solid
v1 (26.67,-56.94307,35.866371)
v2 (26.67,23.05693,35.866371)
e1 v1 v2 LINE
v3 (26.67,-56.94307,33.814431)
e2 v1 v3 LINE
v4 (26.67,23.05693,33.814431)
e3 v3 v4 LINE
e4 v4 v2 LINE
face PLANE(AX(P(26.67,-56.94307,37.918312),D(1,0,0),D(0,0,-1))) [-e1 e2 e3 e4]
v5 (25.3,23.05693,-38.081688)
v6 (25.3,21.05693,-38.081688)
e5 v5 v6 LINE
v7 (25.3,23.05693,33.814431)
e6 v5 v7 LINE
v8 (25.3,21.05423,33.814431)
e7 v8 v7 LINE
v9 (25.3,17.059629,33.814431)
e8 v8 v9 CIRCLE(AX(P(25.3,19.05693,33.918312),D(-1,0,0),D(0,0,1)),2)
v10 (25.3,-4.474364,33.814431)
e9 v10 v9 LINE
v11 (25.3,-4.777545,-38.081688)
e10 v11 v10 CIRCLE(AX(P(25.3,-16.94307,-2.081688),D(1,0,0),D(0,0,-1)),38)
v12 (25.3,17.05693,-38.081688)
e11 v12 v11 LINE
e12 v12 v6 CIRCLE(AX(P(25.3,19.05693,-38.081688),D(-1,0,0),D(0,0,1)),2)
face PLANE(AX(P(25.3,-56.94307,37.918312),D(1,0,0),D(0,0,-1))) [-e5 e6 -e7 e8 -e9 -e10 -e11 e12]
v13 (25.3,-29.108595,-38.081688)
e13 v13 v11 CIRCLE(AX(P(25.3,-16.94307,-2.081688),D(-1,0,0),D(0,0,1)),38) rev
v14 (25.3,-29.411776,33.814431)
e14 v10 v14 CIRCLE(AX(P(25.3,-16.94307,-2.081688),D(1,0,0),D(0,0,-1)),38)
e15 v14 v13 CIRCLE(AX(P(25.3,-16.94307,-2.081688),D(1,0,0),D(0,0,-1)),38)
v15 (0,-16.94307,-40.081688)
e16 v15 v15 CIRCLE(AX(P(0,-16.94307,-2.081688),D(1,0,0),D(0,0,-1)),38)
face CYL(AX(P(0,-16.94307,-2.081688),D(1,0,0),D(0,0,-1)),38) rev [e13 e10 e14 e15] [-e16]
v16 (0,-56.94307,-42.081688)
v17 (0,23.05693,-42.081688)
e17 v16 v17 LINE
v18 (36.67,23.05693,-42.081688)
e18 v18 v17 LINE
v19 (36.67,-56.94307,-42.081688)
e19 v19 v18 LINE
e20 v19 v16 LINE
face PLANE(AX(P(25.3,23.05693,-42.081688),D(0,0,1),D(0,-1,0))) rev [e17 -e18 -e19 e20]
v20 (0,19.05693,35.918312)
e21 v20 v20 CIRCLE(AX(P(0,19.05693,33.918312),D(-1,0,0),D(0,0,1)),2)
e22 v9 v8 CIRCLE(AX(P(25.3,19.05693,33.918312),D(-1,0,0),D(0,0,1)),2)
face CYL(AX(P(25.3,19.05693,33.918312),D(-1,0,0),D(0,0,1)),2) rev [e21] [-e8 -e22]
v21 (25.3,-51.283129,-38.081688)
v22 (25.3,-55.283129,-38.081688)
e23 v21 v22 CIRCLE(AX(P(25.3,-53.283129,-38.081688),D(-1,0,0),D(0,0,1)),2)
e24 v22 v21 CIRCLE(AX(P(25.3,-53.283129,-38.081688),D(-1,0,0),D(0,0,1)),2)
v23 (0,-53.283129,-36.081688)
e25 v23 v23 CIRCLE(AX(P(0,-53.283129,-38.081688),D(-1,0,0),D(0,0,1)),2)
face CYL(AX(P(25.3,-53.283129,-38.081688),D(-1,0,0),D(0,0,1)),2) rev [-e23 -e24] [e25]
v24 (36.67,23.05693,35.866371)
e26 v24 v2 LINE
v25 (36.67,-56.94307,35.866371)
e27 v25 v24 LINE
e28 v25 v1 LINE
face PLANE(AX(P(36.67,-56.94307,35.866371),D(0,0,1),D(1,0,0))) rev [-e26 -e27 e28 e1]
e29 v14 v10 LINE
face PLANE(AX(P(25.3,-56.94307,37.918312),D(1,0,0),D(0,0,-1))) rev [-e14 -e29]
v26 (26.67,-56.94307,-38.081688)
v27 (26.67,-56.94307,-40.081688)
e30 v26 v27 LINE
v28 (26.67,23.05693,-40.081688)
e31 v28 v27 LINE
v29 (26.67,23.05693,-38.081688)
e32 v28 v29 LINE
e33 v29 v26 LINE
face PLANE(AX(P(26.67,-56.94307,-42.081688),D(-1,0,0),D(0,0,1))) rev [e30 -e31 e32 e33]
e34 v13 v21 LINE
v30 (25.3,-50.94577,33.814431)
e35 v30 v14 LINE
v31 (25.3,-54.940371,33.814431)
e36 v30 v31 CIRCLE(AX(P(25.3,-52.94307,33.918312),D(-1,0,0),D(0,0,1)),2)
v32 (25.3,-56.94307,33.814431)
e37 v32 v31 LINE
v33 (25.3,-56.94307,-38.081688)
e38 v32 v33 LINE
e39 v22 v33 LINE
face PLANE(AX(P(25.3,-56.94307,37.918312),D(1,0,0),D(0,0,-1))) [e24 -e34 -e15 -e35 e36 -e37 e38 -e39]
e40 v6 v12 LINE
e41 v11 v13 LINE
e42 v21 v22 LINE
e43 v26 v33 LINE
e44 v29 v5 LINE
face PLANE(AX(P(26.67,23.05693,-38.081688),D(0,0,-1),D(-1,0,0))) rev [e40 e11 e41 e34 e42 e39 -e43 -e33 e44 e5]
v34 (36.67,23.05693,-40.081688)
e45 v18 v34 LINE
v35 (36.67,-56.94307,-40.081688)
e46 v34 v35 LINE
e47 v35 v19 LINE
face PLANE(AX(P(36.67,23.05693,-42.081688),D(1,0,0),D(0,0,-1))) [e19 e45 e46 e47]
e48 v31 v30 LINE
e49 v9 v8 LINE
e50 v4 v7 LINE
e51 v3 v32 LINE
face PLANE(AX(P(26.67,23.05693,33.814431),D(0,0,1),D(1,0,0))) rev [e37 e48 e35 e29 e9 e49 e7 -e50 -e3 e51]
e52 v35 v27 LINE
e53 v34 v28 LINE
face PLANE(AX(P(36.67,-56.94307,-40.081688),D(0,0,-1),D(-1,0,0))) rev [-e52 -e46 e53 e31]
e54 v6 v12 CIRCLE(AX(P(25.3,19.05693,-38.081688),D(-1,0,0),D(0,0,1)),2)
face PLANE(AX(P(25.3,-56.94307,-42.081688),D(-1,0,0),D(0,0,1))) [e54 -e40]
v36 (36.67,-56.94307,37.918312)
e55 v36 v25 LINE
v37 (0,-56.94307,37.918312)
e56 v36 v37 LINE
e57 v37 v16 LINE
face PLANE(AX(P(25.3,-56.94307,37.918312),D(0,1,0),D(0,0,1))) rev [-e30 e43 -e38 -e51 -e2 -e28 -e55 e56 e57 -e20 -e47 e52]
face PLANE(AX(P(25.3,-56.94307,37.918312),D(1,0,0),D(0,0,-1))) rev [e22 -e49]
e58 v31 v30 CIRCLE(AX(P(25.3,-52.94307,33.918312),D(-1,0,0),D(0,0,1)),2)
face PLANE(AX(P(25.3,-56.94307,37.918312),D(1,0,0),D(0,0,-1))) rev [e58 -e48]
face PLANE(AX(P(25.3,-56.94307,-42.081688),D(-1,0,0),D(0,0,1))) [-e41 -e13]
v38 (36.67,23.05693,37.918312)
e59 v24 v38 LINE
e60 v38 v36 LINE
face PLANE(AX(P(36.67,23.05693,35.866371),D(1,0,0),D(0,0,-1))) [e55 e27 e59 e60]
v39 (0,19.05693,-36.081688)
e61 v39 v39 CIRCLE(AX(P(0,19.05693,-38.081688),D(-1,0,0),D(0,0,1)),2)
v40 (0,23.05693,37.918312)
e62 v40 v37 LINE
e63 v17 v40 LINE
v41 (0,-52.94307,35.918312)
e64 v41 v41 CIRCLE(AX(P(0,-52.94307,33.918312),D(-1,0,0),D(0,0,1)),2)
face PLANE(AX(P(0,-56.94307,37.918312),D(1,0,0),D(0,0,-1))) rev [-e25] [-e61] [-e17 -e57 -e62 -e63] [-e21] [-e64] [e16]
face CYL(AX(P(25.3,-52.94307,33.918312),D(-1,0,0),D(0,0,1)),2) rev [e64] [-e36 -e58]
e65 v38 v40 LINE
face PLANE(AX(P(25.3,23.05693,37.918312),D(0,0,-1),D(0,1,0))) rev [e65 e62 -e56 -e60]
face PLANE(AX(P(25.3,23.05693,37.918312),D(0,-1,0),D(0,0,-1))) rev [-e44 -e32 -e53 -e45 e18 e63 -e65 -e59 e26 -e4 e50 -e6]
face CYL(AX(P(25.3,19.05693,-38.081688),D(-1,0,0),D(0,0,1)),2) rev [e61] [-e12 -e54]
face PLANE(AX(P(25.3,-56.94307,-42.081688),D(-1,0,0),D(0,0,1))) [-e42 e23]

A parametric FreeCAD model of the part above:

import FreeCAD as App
import Part
import Sketcher


def add_polygon(sketch, points):
    """Adds a closed chain of lines whose ends are joined by coincident constraints."""
    first, n = sketch.GeometryCount, len(points)
    for a, b in zip(points, points[1:] + points[:1]):
        sketch.addGeometry(Part.LineSegment(App.Vector(*a, 0), App.Vector(*b, 0)), False)
    for i in range(n):
        sketch.addConstraint(Sketcher.Constraint("Coincident", first + i, 2, first + (i + 1) % n, 1))

doc = App.newDocument("Part")
params = doc.addObject("Spreadsheet::Sheet", "Params")
for row, (alias, value) in enumerate([
    ("sketch1_width", "80 mm"),
    ("pad1_length", "25.3 mm"),
    ("sketch2_diameter", "76 mm"),
    ("pocket1_length", "25.3 mm"),
    ("sketch3_diameter", "4 mm"),
    ("pocket2_length", "25.3 mm"),
    ("sketch4_diameter", "4 mm"),
    ("pocket3_length", "25.3 mm"),
    ("sketch5_width", "80 mm"),
    ("sketch5_height", "4 mm"),
    ("pad2_length", "1.37 mm"),
    ("sketch6_width", "80 mm"),
    ("pad3_length", "10 mm"),
    ("sketch7_width", "80 mm"),
    ("sketch7_height", "2 mm"),
    ("pad4_length", "10 mm"),
], start=1):
    params.set(f"A{row}", alias)
    params.set(f"B{row}", "=" + value)
    params.setAlias(f"B{row}", alias)

body = doc.addObject("PartDesign::Body", "Body")

# Sketch on YZ plane
sketch1 = body.newObject("Sketcher::SketchObject", "Sketch")
sketch1.AttachmentSupport = (doc.getObject("YZ_Plane"), [""])
sketch1.MapMode = "FlatFace"
add_polygon(sketch1, [(23.05693, 37.918312), (-56.94307, 37.918312), (-56.94307, -42.081688), (23.05693, -42.081688)])  # lines 0-3
sketch1.addConstraint(Sketcher.Constraint("Horizontal", 0))
sketch1.addConstraint(Sketcher.Constraint("Vertical", 1))
sketch1.addConstraint(Sketcher.Constraint("Horizontal", 2))
sketch1.addConstraint(Sketcher.Constraint("Vertical", 3))
sketch1.addConstraint(Sketcher.Constraint("Equal", 2, 1))
sketch1.addConstraint(Sketcher.Constraint("DistanceX", 0, 2, 0, 1, 80.0))
sketch1.addConstraint(Sketcher.Constraint("DistanceX", 0, 2, -1, 1, 56.94307))
sketch1.addConstraint(Sketcher.Constraint("DistanceY", -1, 1, 0, 2, 37.918312))
sketch1.setExpression("Constraints[9]", "Params.sketch1_width")
pad1 = body.newObject("PartDesign::Pad", "Pad")
pad1.Profile = sketch1
pad1.setExpression("Length", "Params.pad1_length")

# Sketch on YZ plane
sketch2 = body.newObject("Sketcher::SketchObject", "Sketch001")
sketch2.AttachmentSupport = (doc.getObject("YZ_Plane"), [""])
sketch2.MapMode = "FlatFace"
sketch2.AttachmentOffset = App.Placement(App.Vector(0, 0, 25.3), App.Rotation())
sketch2.addGeometry(Part.Circle(App.Vector(-16.94307, -2.081688, 0), App.Vector(0, 0, 1), 38), False)
sketch2.addConstraint(Sketcher.Constraint("Diameter", 0, 76.0))
sketch2.addConstraint(Sketcher.Constraint("DistanceX", 0, 3, -1, 1, 16.94307))
sketch2.addConstraint(Sketcher.Constraint("DistanceY", 0, 3, -1, 1, 2.081688))
sketch2.setExpression("Constraints[0]", "Params.sketch2_diameter")
pocket1 = body.newObject("PartDesign::Pocket", "Pocket")
pocket1.Profile = sketch2
pocket1.setExpression("Length", "Params.pocket1_length")

# Sketch on YZ plane
sketch3 = body.newObject("Sketcher::SketchObject", "Sketch002")
sketch3.AttachmentSupport = (doc.getObject("YZ_Plane"), [""])
sketch3.MapMode = "FlatFace"
sketch3.addGeometry(Part.Circle(App.Vector(19.05693, -38.081688, 0), App.Vector(0, 0, 1), 2), False)
sketch3.addConstraint(Sketcher.Constraint("Diameter", 0, 4.0))
sketch3.addConstraint(Sketcher.Constraint("DistanceX", -1, 1, 0, 3, 19.05693))
sketch3.addConstraint(Sketcher.Constraint("DistanceY", 0, 3, -1, 1, 38.081688))
sketch3.setExpression("Constraints[0]", "Params.sketch3_diameter")
pocket2 = body.newObject("PartDesign::Pocket", "Pocket001")
pocket2.Profile = sketch3
pocket2.setExpression("Length", "Params.pocket2_length")
pocket2.Reversed = True

# Sketch on YZ plane
sketch4 = body.newObject("Sketcher::SketchObject", "Sketch003")
sketch4.AttachmentSupport = (doc.getObject("YZ_Plane"), [""])
sketch4.MapMode = "FlatFace"
sketch4.addGeometry(Part.Circle(App.Vector(19.05693, 33.918312, 0), App.Vector(0, 0, 1), 2), False)
sketch4.addGeometry(Part.Circle(App.Vector(-52.94307, 33.918312, 0), App.Vector(0, 0, 1), 2), False)
sketch4.addGeometry(Part.Circle(App.Vector(-53.283129, -38.081688, 0), App.Vector(0, 0, 1), 2), False)
sketch4.addConstraint(Sketcher.Constraint("Equal", 0, 1))
sketch4.addConstraint(Sketcher.Constraint("Equal", 1, 2))
sketch4.addConstraint(Sketcher.Constraint("Horizontal", 0, 3, 1, 3))
sketch4.addConstraint(Sketcher.Constraint("Diameter", 0, 4.0))
sketch4.addConstraint(Sketcher.Constraint("DistanceX", 1, 3, 0, 3, 72.0))
sketch4.addConstraint(Sketcher.Constraint("DistanceY", 2, 3, 1, 3, 72.0))
sketch4.addConstraint(Sketcher.Constraint("DistanceX", -1, 1, 0, 3, 19.05693))
sketch4.addConstraint(Sketcher.Constraint("DistanceY", -1, 1, 0, 3, 33.918312))
sketch4.addConstraint(Sketcher.Constraint("DistanceX", 2, 3, -1, 1, 53.283129))
sketch4.setExpression("Constraints[3]", "Params.sketch4_diameter")
pocket3 = body.newObject("PartDesign::Pocket", "Pocket002")
pocket3.Profile = sketch4
pocket3.setExpression("Length", "Params.pocket3_length")
pocket3.Reversed = True

# Sketch on YZ plane
sketch5 = body.newObject("Sketcher::SketchObject", "Sketch004")
sketch5.AttachmentSupport = (doc.getObject("YZ_Plane"), [""])
sketch5.MapMode = "FlatFace"
sketch5.AttachmentOffset = App.Placement(App.Vector(0, 0, 25.3), App.Rotation())
add_polygon(sketch5, [(23.05693, 37.918312), (-56.94307, 37.918312), (-56.94307, 33.814431), (23.05693, 33.814431)])  # lines 0-3
add_polygon(sketch5, [(23.05693, -38.081688), (-56.94307, -38.081688), (-56.94307, -42.081688), (23.05693, -42.081688)])  # lines 4-7
sketch5.addConstraint(Sketcher.Constraint("Horizontal", 0))
sketch5.addConstraint(Sketcher.Constraint("Vertical", 1))
sketch5.addConstraint(Sketcher.Constraint("Horizontal", 2))
sketch5.addConstraint(Sketcher.Constraint("Vertical", 3))
sketch5.addConstraint(Sketcher.Constraint("Horizontal", 4))
sketch5.addConstraint(Sketcher.Constraint("Vertical", 5))
sketch5.addConstraint(Sketcher.Constraint("Horizontal", 6))
sketch5.addConstraint(Sketcher.Constraint("Vertical", 7))
sketch5.addConstraint(Sketcher.Constraint("Vertical", 1, 2, 4, 2))
sketch5.addConstraint(Sketcher.Constraint("Vertical", 3, 2, 6, 2))
sketch5.addConstraint(Sketcher.Constraint("DistanceX", 0, 2, 0, 1, 80.0))
sketch5.addConstraint(Sketcher.Constraint("DistanceY", 5, 2, 5, 1, 4.0))
sketch5.addConstraint(Sketcher.Constraint("DistanceY", 4, 2, 0, 2, 76.0))
sketch5.addConstraint(Sketcher.Constraint("DistanceY", 1, 2, 1, 1, 4.103881))
sketch5.addConstraint(Sketcher.Constraint("DistanceX", 0, 2, -1, 1, 56.94307))
sketch5.addConstraint(Sketcher.Constraint("DistanceY", -1, 1, 0, 2, 37.918312))
sketch5.setExpression("Constraints[18]", "Params.sketch5_width")
sketch5.setExpression("Constraints[19]", "Params.sketch5_height")
pad2 = body.newObject("PartDesign::Pad", "Pad001")
pad2.Profile = sketch5
pad2.setExpression("Length", "Params.pad2_length")

# Sketch on YZ plane
sketch6 = body.newObject("Sketcher::SketchObject", "Sketch005")
sketch6.AttachmentSupport = (doc.getObject("YZ_Plane"), [""])
sketch6.MapMode = "FlatFace"
sketch6.AttachmentOffset = App.Placement(App.Vector(0, 0, 26.67), App.Rotation())
add_polygon(sketch6, [(23.05693, 37.918312), (-56.94307, 37.918312), (-56.94307, 35.866371), (23.05693, 35.866371)])  # lines 0-3
sketch6.addConstraint(Sketcher.Constraint("Horizontal", 0))
sketch6.addConstraint(Sketcher.Constraint("Vertical", 1))
sketch6.addConstraint(Sketcher.Constraint("Horizontal", 2))
sketch6.addConstraint(Sketcher.Constraint("Vertical", 3))
sketch6.addConstraint(Sketcher.Constraint("DistanceX", 0, 2, 0, 1, 80.0))
sketch6.addConstraint(Sketcher.Constraint("DistanceY", 1, 2, 1, 1, 2.05194))
sketch6.addConstraint(Sketcher.Constraint("DistanceX", 0, 2, -1, 1, 56.94307))
sketch6.addConstraint(Sketcher.Constraint("DistanceY", -1, 1, 0, 2, 37.918312))
sketch6.setExpression("Constraints[8]", "Params.sketch6_width")
pad3 = body.newObject("PartDesign::Pad", "Pad002")
pad3.Profile = sketch6
pad3.setExpression("Length", "Params.pad3_length")

# Sketch on YZ plane
sketch7 = body.newObject("Sketcher::SketchObject", "Sketch006")
sketch7.AttachmentSupport = (doc.getObject("YZ_Plane"), [""])
sketch7.MapMode = "FlatFace"
sketch7.AttachmentOffset = App.Placement(App.Vector(0, 0, 26.67), App.Rotation())
add_polygon(sketch7, [(23.05693, -40.081688), (-56.94307, -40.081688), (-56.94307, -42.081688), (23.05693, -42.081688)])  # lines 0-3
sketch7.addConstraint(Sketcher.Constraint("Horizontal", 0))
sketch7.addConstraint(Sketcher.Constraint("Vertical", 1))
sketch7.addConstraint(Sketcher.Constraint("Horizontal", 2))
sketch7.addConstraint(Sketcher.Constraint("Vertical", 3))
sketch7.addConstraint(Sketcher.Constraint("DistanceX", 0, 2, 0, 1, 80.0))
sketch7.addConstraint(Sketcher.Constraint("DistanceY", 1, 2, 1, 1, 2.0))
sketch7.addConstraint(Sketcher.Constraint("DistanceX", 0, 2, -1, 1, 56.94307))
sketch7.addConstraint(Sketcher.Constraint("DistanceY", 0, 2, -1, 1, 40.081688))
sketch7.setExpression("Constraints[8]", "Params.sketch7_width")
sketch7.setExpression("Constraints[9]", "Params.sketch7_height")
pad4 = body.newObject("PartDesign::Pad", "Pad003")
pad4.Profile = sketch7
pad4.setExpression("Length", "Params.pad4_length")

doc.recompute()
